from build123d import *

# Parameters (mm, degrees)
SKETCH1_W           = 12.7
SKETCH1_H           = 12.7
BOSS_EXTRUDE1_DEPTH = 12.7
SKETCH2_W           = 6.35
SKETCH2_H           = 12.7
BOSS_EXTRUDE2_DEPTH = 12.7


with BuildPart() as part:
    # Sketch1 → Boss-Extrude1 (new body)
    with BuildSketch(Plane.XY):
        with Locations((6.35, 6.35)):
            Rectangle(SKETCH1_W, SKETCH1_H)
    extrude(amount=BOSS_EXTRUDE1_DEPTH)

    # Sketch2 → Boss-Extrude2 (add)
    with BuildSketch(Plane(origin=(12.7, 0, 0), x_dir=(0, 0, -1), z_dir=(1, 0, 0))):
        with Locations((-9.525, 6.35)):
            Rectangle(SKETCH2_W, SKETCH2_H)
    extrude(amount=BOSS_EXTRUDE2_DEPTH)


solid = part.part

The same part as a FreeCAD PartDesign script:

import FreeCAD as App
import Part
import Sketcher

V = App.Vector
Q = App.Units.Quantity


def add_polygon(sketch, points):
    """Adds a closed chain of lines whose ends are joined by coincident constraints."""
    first, n = sketch.GeometryCount, len(points)
    for a, b in zip(points, points[1:] + points[:1]):
        sketch.addGeometry(Part.LineSegment(App.Vector(*a, 0), App.Vector(*b, 0)), False)
    for i in range(n):
        sketch.addConstraint(Sketcher.Constraint("Coincident", first + i, 2, first + (i + 1) % n, 1))

doc = App.newDocument("Part")
body = doc.addObject("PartDesign::Body", "Body")

sketch1 = body.newObject("Sketcher::SketchObject", "Sketch")
sketch1.AttachmentSupport = (doc.getObject("XY_Plane"), [""])
sketch1.MapMode = "FlatFace"
add_polygon(sketch1, [(0, 13), (0, 0), (13, 0), (13, 13)])
sketch1.addConstraint([
    Sketcher.Constraint("Vertical", 0),
    Sketcher.Constraint("Horizontal", 1),
    Sketcher.Constraint("Vertical", 2),
    Sketcher.Constraint("Horizontal", 3),
    Sketcher.Constraint("Coincident", 0, 2, -1, 1),
    Sketcher.Constraint("Equal", 3, 0),
    Sketcher.Constraint("DistanceX", 1, 1, 1, 2, Q("0.5 in")),
])
pad1 = body.newObject("PartDesign::Pad", "Pad")
pad1.Profile = sketch1
pad1.Length = Q("0.5 in")

sketch2 = body.newObject("Sketcher::SketchObject", "Sketch001")
sketch2.AttachmentSupport = (doc.getObject("YZ_Plane"), [""])
sketch2.MapMode = "FlatFace"
sketch2.AttachmentOffset = App.Placement(V(0, 0, 0.5 * 25.4), App.Rotation())
add_polygon(sketch2, [(13, 13), (0, 13), (0, 6), (13, 6)])
sketch2.addConstraint([
    Sketcher.Constraint("Horizontal", 0),
    Sketcher.Constraint("Vertical", 1),
    Sketcher.Constraint("Horizontal", 2),
    Sketcher.Constraint("Vertical", 3),
    Sketcher.Constraint("PointOnObject", 0, 2, -2),
    Sketcher.Constraint("DistanceX", 0, 2, 0, 1, Q("0.5 in")),
    Sketcher.Constraint("DistanceY", 1, 2, 1, 1, Q("0.25 in")),
    Sketcher.Constraint("DistanceY", -1, 1, 0, 2, Q("0.5 in")),
])
pad2 = body.newObject("PartDesign::Pad", "Pad001")
pad2.Profile = sketch2
pad2.Length = Q("0.5 in")

doc.recompute()
